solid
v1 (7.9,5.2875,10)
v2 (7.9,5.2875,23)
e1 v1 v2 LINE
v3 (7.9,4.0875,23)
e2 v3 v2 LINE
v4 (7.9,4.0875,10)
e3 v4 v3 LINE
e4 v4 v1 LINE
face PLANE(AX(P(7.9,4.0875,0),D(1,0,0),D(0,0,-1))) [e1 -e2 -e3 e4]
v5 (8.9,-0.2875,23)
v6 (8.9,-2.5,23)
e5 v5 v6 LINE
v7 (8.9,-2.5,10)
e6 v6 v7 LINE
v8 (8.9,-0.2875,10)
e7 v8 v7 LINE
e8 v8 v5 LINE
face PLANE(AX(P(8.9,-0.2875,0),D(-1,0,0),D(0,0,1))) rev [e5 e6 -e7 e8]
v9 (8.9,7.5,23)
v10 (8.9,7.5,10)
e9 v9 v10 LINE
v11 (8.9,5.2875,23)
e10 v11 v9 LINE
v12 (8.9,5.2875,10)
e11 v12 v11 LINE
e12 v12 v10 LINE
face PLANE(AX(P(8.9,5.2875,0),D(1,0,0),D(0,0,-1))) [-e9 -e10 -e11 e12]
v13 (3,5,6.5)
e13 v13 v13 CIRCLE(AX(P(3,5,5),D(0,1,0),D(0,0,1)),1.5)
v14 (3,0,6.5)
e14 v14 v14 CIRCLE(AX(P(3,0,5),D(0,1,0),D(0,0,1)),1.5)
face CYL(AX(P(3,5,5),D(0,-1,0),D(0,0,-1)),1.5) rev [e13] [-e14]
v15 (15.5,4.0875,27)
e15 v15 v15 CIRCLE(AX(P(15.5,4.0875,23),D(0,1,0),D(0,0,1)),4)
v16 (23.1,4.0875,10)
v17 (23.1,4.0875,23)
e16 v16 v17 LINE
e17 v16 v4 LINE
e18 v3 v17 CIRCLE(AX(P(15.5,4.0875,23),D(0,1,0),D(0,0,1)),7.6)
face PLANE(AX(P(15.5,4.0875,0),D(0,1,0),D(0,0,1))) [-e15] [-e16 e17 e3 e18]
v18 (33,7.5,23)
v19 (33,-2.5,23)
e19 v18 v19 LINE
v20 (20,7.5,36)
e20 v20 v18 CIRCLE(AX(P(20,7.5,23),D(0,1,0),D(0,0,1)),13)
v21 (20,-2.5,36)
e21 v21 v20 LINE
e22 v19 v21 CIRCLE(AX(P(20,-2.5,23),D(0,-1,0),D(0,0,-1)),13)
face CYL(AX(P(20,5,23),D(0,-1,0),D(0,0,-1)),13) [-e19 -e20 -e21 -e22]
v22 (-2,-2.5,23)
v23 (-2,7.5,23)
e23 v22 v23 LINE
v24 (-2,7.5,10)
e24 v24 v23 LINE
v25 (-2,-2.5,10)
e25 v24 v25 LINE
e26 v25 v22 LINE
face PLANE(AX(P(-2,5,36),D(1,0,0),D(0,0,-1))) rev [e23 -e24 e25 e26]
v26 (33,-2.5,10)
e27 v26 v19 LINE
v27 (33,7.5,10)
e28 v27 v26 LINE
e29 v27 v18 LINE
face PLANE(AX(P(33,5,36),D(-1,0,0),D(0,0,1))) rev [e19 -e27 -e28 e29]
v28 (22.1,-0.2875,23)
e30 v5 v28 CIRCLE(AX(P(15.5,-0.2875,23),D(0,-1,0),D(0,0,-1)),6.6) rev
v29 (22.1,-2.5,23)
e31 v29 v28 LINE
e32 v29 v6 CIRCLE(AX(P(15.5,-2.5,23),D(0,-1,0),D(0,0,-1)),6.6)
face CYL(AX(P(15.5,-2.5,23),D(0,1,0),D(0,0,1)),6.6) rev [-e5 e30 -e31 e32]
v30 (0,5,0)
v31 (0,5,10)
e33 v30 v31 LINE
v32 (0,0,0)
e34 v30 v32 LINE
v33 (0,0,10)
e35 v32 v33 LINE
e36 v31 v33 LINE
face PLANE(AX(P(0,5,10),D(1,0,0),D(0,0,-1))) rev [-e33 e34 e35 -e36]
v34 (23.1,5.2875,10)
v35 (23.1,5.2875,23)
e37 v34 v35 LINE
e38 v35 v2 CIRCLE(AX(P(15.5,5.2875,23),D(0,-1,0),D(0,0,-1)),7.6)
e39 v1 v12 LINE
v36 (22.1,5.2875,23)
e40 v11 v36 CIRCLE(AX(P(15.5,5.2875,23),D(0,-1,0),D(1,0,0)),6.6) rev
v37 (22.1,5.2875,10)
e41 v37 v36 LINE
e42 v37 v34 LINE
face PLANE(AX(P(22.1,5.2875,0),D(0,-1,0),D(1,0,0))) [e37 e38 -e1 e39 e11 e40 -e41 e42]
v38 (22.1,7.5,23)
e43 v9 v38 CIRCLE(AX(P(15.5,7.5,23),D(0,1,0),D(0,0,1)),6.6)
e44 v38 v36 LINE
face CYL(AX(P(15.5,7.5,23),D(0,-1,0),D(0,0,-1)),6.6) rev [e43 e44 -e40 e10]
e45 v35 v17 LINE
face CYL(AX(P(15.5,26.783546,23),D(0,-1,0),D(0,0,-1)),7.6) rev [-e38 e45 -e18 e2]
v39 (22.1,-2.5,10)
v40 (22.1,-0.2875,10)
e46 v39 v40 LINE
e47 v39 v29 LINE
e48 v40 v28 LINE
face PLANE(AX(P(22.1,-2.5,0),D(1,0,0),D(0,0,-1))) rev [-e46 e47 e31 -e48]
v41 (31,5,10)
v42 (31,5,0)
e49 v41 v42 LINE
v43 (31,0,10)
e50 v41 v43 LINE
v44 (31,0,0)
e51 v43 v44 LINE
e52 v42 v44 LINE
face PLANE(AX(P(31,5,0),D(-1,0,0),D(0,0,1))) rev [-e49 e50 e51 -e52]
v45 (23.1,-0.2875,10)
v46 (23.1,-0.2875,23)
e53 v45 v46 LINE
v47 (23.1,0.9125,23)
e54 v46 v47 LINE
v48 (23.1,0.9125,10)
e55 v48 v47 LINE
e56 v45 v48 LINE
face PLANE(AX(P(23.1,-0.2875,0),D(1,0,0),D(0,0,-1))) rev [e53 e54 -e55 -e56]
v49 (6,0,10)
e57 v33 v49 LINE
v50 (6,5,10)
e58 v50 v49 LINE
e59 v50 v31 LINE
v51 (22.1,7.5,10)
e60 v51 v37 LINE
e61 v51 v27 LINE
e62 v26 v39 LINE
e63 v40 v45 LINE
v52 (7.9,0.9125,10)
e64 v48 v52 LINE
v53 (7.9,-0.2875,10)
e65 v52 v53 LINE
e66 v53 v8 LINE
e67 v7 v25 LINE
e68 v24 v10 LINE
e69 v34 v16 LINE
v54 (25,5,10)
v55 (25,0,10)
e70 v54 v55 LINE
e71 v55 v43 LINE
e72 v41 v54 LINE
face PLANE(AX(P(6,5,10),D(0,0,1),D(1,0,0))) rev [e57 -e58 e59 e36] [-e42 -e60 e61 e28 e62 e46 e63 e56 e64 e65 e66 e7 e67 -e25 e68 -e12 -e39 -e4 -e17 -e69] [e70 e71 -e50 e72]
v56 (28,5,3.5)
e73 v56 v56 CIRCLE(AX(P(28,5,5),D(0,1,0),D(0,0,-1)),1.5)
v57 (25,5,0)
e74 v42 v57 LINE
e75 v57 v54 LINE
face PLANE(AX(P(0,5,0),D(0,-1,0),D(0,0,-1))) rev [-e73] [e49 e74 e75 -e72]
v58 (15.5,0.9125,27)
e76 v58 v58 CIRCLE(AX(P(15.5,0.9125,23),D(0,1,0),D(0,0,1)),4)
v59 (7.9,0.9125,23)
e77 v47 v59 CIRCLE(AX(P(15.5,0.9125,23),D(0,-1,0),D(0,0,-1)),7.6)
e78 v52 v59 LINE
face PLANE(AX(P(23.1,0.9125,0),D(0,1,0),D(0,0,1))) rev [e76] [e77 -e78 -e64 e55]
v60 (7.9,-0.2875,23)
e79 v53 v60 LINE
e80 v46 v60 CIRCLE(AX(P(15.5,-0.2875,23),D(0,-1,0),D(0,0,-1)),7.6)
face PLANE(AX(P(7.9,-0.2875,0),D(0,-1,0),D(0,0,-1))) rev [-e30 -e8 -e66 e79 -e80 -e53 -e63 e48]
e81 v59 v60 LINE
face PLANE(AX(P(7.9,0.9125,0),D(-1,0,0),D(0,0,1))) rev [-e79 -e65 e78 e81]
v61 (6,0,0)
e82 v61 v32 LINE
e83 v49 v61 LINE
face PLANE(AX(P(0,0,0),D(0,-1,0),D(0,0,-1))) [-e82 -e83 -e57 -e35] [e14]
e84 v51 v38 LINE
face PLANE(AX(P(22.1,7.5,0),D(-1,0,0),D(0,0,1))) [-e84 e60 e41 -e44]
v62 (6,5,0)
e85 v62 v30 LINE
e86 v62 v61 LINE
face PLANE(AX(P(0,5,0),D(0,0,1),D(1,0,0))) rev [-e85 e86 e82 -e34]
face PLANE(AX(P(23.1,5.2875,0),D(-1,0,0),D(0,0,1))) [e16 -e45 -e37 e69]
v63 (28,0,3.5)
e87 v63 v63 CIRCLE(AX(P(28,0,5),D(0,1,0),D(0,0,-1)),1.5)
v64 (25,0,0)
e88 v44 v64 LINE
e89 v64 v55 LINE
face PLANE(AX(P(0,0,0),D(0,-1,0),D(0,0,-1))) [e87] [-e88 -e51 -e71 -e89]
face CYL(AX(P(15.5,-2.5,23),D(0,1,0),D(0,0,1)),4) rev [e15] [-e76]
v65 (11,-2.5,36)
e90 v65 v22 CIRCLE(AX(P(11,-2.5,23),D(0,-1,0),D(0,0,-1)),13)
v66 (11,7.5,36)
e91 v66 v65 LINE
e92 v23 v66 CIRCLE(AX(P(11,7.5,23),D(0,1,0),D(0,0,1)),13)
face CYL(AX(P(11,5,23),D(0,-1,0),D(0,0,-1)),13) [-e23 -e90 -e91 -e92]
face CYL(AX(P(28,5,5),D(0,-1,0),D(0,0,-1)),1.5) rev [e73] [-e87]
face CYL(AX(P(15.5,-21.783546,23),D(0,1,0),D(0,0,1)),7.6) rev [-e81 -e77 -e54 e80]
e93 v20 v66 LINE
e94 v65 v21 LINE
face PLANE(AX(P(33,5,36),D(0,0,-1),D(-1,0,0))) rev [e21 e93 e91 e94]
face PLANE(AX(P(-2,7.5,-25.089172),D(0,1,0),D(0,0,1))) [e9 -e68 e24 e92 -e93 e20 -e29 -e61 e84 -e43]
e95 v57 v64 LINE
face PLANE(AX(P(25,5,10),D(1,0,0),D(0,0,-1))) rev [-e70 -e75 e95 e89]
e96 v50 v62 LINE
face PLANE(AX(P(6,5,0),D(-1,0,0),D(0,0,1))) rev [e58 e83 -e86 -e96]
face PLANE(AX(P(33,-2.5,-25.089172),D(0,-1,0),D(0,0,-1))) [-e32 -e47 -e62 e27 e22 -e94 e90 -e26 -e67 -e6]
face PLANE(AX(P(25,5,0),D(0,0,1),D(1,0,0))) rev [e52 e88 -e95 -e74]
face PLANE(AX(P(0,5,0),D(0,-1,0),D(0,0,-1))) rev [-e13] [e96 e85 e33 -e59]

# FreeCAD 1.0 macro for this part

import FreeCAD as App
import Part
import Sketcher


def edges_at(feature, points):
    """Names of the edges that pass closest to the given points."""
    edges = feature.Shape.Edges
    near = lambda p: min(range(len(edges)), key=lambda i: edges[i].distToShape(Part.Vertex(*p))[0])
    return sorted({f"Edge{near(p) + 1}" for p in points})


def add_polygon(sketch, points):
    """Adds a closed chain of lines whose ends are joined by coincident constraints."""
    first, n = sketch.GeometryCount, len(points)
    for a, b in zip(points, points[1:] + points[:1]):
        sketch.addGeometry(Part.LineSegment(App.Vector(*a, 0), App.Vector(*b, 0)), False)
    for i in range(n):
        sketch.addConstraint(Sketcher.Constraint("Coincident", first + i, 2, first + (i + 1) % n, 1))

doc = App.newDocument("Part")
body = doc.addObject("PartDesign::Body", "Body")

sketch1 = doc.addObject("Sketcher::SketchObject", "Sketch")
body.addObject(sketch1)
sketch1.AttachmentSupport = (doc.XZ_Plane, [""])
sketch1.MapMode = "FlatFace"
add_polygon(sketch1, [(6, 0), (0, 0), (0, 10), (-2, 10), (-2, 36), (33, 36), (33, 10), (31, 10), (31, 0), (25, 0), (25, 10), (6, 10)])
sketch1.addGeometry(Part.Circle(App.Vector(28, 5, 0), App.Vector(0, 0, 1), 1.5), False)
sketch1.addGeometry(Part.Circle(App.Vector(3, 5, 0), App.Vector(0, 0, 1), 1.5), False)
sketch1.addConstraint([
    Sketcher.Constraint("Horizontal", 0),
    Sketcher.Constraint("Vertical", 1),
    Sketcher.Constraint("Horizontal", 2),
    Sketcher.Constraint("Vertical", 3),
    Sketcher.Constraint("Horizontal", 4),
    Sketcher.Constraint("Vertical", 5),
    Sketcher.Constraint("Horizontal", 6),
    Sketcher.Constraint("Vertical", 7),
    Sketcher.Constraint("Horizontal", 8),
    Sketcher.Constraint("Vertical", 9),
    Sketcher.Constraint("Horizontal", 10),
    Sketcher.Constraint("Vertical", 11),
    Sketcher.Constraint("Coincident", 0, 2, -1, 1),
    Sketcher.Constraint("Equal", 12, 13),
    Sketcher.Constraint("PointOnObject", 7, 2, -1),
    Sketcher.Constraint("Horizontal", 12, 3, 13, 3),
    Sketcher.Constraint("Horizontal", 2, 2, 5, 2),
    Sketcher.Constraint("Horizontal", 6, 2, 9, 2),
    Sketcher.Constraint("Equal", 2, 6),
    Sketcher.Constraint("Equal", 0, 8),
    Sketcher.Constraint("Diameter", 12, 3.0),
    Sketcher.Constraint("DistanceX", 0, 2, 0, 1, 6.0),
    Sketcher.Constraint("DistanceX", 2, 2, 2, 1, 2.0),
    Sketcher.Constraint("DistanceX", 4, 1, 4, 2, 35.0),
    Sketcher.Constraint("DistanceY", 1, 1, 1, 2, 10.0),
    Sketcher.Constraint("DistanceY", 3, 1, 3, 2, 26.0),
    Sketcher.Constraint("DistanceX", -1, 1, 12, 3, 28.0),
    Sketcher.Constraint("DistanceY", -1, 1, 12, 3, 5.0),
    Sketcher.Constraint("DistanceX", -1, 1, 13, 3, 3.0),
])
pad1 = doc.addObject("PartDesign::Pad", "Pad")
body.addObject(pad1)
pad1.Profile = sketch1
pad1.Length = 5
pad1.Reversed = True

sketch2 = doc.addObject("Sketcher::SketchObject", "Sketch001")
body.addObject(sketch2)
sketch2.AttachmentSupport = (doc.XY_Plane, [""])
sketch2.MapMode = "FlatFace"
sketch2.AttachmentOffset = App.Placement(App.Vector(0, 0, 36), App.Rotation())
add_polygon(sketch2, [(-2, 7.5), (-2, 5), (33, 5), (33, 7.5)])
add_polygon(sketch2, [(-2, 0), (-2, -2.5), (33, -2.5), (33, 0)])
sketch2.addConstraint([
    Sketcher.Constraint("Vertical", 0),
    Sketcher.Constraint("Horizontal", 1),
    Sketcher.Constraint("Vertical", 2),
    Sketcher.Constraint("Horizontal", 3),
    Sketcher.Constraint("Vertical", 4),
    Sketcher.Constraint("Horizontal", 5),
    Sketcher.Constraint("Vertical", 6),
    Sketcher.Constraint("Horizontal", 7),
    Sketcher.Constraint("PointOnObject", 6, 2, -1),
    Sketcher.Constraint("Vertical", 3, 2, 4, 2),
    Sketcher.Constraint("Vertical", 2, 2, 5, 2),
    Sketcher.Constraint("Equal", 2, 4),
    Sketcher.Constraint("DistanceX", 1, 1, 1, 2, 35.0),
    Sketcher.Constraint("DistanceY", 0, 2, 0, 1, 2.5),
    Sketcher.Constraint("DistanceX", 0, 2, -1, 1, 2.0),
    Sketcher.Constraint("DistanceY", -1, 1, 0, 2, 5.0),
])
pad2 = doc.addObject("PartDesign::Pad", "Pad001")
body.addObject(pad2)
pad2.Profile = sketch2
pad2.Length = 26
pad2.Reversed = True
doc.recompute()

fillet = doc.addObject("PartDesign::Fillet", "Fillet")
body.addObject(fillet)
fillet.Base = (pad2, edges_at(pad2, [(33, 2.5, 36), (-2, 2.5, 36)]))
fillet.Radius = 13

sketch3 = doc.addObject("Sketcher::SketchObject", "Sketch002")
body.addObject(sketch3)
sketch3.AttachmentSupport = (doc.XY_Plane, [""])
sketch3.MapMode = "FlatFace"
sketch3.AttachmentOffset = App.Placement(App.Vector(0, 0, 23), App.Rotation())
add_polygon(sketch3, [(22.1, 7.5), (22.1, 5.3), (23.1, 5.3), (23.1, 4.1), (7.9, 4.1), (7.9, 5.3), (8.9, 5.3), (8.9, 7.5)])
sketch3.addConstraint([
    Sketcher.Constraint("Vertical", 0),
    Sketcher.Constraint("Horizontal", 1),
    Sketcher.Constraint("Vertical", 2),
    Sketcher.Constraint("Horizontal", 3),
    Sketcher.Constraint("Vertical", 4),
    Sketcher.Constraint("Horizontal", 5),
    Sketcher.Constraint("Vertical", 6),
    Sketcher.Constraint("Horizontal", 7),
    Sketcher.Constraint("Horizontal", 1, 2, 4, 2),
    Sketcher.Constraint("Equal", 1, 5),
    Sketcher.Constraint("DistanceX", 1, 1, 1, 2, 1.0),
    Sketcher.Constraint("DistanceX", 3, 2, 3, 1, 15.2),
    Sketcher.Constraint("DistanceY", 2, 2, 2, 1, 1.2),
    Sketcher.Constraint("DistanceX", -1, 1, 0, 2, 22.1),
    Sketcher.Constraint("DistanceY", -1, 1, 6, 2, 7.5),
    Sketcher.Constraint("DistanceY", 0, 2, 0, 1, 2.2125),
])
pocket1 = doc.addObject("PartDesign::Pocket", "Pocket")
body.addObject(pocket1)
pocket1.Profile = sketch3
pocket1.Length = 56.676106

sketch4 = doc.addObject("Sketcher::SketchObject", "Sketch003")
body.addObject(sketch4)
sketch4.AttachmentSupport = (doc.XZ_Plane, [""])
sketch4.MapMode = "FlatFace"
sketch4.AttachmentOffset = App.Placement(App.Vector(0, 0, -4.0875), App.Rotation())
sketch4.addGeometry(Part.Circle(App.Vector(16, 23, 0), App.Vector(0, 0, 1), 8), False)
sketch4.addConstraint([
    Sketcher.Constraint("Diameter", 0, 15.2),
    Sketcher.Constraint("DistanceY", -1, 1, 0, 3, 23.0),
    Sketcher.Constraint("DistanceX", -1, 1, 0, 3, 15.5),
])
pocket2 = doc.addObject("PartDesign::Pocket", "Pocket001")
body.addObject(pocket2)
pocket2.Profile = sketch4
pocket2.Length = 1.2

sketch5 = doc.addObject("Sketcher::SketchObject", "Sketch004")
body.addObject(sketch5)
sketch5.AttachmentSupport = (doc.XZ_Plane, [""])
sketch5.MapMode = "FlatFace"
sketch5.AttachmentOffset = App.Placement(App.Vector(0, 0, -4.0875), App.Rotation())
sketch5.addGeometry(Part.Circle(App.Vector(16, 23, 0), App.Vector(0, 0, 1), 7), False)
sketch5.addConstraint([
    Sketcher.Constraint("Diameter", 0, 13.2),
    Sketcher.Constraint("DistanceY", -1, 1, 0, 3, 23.0),
    Sketcher.Constraint("DistanceX", -1, 1, 0, 3, 15.5),
])
pocket3 = doc.addObject("PartDesign::Pocket", "Pocket002")
body.addObject(pocket3)
pocket3.Profile = sketch5
pocket3.Type = "ThroughAll"
doc.recompute()

datumplane = doc.addObject("PartDesign::Plane", "DatumPlane")
body.addObject(datumplane)
datumplane.AttachmentSupport = (doc.XZ_Plane, [""])
datumplane.MapMode = "FlatFace"
datumplane.AttachmentOffset = App.Placement(App.Vector(0, 0, -2.5), App.Rotation())
mirrored = doc.addObject("PartDesign::Mirrored", "Mirrored")
body.addObject(mirrored)
mirrored.Originals = [pocket1]
mirrored.MirrorPlane = (datumplane, [""])
body.Tip = mirrored

sketch6 = doc.addObject("Sketcher::SketchObject", "Sketch005")
body.addObject(sketch6)
sketch6.AttachmentSupport = (doc.XZ_Plane, [""])
sketch6.MapMode = "FlatFace"
sketch6.AttachmentOffset = App.Placement(App.Vector(0, 0, 0.2875), App.Rotation())
sketch6.addGeometry(Part.Circle(App.Vector(16, 23, 0), App.Vector(0, 0, 1), 8), False)
sketch6.addConstraint([
    Sketcher.Constraint("Diameter", 0, 15.2),
    Sketcher.Constraint("DistanceY", -1, 1, 0, 3, 23.0),
    Sketcher.Constraint("DistanceX", -1, 1, 0, 3, 15.5),
])
pocket4 = doc.addObject("PartDesign::Pocket", "Pocket003")
body.addObject(pocket4)
pocket4.Profile = sketch6
pocket4.Length = 1.2

sketch7 = doc.addObject("Sketcher::SketchObject", "Sketch006")
body.addObject(sketch7)
sketch7.AttachmentSupport = (doc.XZ_Plane, [""])
sketch7.MapMode = "FlatFace"
sketch7.AttachmentOffset = App.Placement(App.Vector(0, 0, -0.9125), App.Rotation())
sketch7.addGeometry(Part.Circle(App.Vector(16, 23, 0), App.Vector(0, 0, 1), 7), False)
sketch7.addConstraint([
    Sketcher.Constraint("Diameter", 0, 13.2),
    Sketcher.Constraint("DistanceY", -1, 1, 0, 3, 23.0),
    Sketcher.Constraint("DistanceX", -1, 1, 0, 3, 15.5),
])
pocket5 = doc.addObject("PartDesign::Pocket", "Pocket004")
body.addObject(pocket5)
pocket5.Profile = sketch7
pocket5.Type = "ThroughAll"
pocket5.Reversed = True

sketch8 = doc.addObject("Sketcher::SketchObject", "Sketch007")
body.addObject(sketch8)
sketch8.AttachmentSupport = (doc.XZ_Plane, [""])
sketch8.MapMode = "FlatFace"
sketch8.AttachmentOffset = App.Placement(App.Vector(0, 0, -4.0875), App.Rotation())
sketch8.addGeometry(Part.Circle(App.Vector(15.5, 23, 0), App.Vector(0, 0, 1), 4), False)
sketch8.addConstraint([
    Sketcher.Constraint("Diameter", 0, 8.0),
    Sketcher.Constraint("DistanceY", -1, 1, 0, 3, 23.0),
    Sketcher.Constraint("DistanceX", -1, 1, 0, 3, 15.5),
])
pocket6 = doc.addObject("PartDesign::Pocket", "Pocket005")
body.addObject(pocket6)
pocket6.Profile = sketch8
pocket6.Type = "ThroughAll"
pocket6.Reversed = True

doc.recompute()
